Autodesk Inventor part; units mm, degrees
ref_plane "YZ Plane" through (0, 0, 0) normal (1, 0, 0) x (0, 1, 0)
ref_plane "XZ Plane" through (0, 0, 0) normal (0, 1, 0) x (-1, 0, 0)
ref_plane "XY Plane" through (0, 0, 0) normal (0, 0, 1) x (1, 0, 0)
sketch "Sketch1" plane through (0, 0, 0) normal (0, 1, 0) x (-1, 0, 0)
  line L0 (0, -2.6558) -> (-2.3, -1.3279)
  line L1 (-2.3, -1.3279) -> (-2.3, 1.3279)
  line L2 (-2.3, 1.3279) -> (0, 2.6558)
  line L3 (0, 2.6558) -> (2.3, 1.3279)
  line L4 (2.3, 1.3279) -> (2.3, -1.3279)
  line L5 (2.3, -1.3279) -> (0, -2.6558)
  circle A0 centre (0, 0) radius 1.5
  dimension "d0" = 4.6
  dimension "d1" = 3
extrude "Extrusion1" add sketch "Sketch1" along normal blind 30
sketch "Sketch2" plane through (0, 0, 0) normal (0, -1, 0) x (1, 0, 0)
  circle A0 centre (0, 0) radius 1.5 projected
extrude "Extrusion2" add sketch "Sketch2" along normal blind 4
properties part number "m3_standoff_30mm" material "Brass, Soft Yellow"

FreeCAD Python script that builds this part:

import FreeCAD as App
import Part
import Sketcher
from FreeCAD import Vector
Q = App.Units.Quantity

doc = App.newDocument("Part")
body = doc.addObject("PartDesign::Body", "Body")
body.AllowCompound = True

# Sketch on XZ plane
sketch1 = body.newObject("Sketcher::SketchObject", "Sketch")
sketch1.AttachmentSupport = (doc.getObject("XZ_Plane"), [""])
sketch1.MapMode = "FlatFace"
sketch1.addGeometry(Part.LineSegment(Vector(2.3, -1.3, 0), Vector(0, -2.7, 0)), False)
sketch1.addGeometry(Part.LineSegment(Vector(0, -2.7, 0), Vector(-2.3, -1.3, 0)), False)
sketch1.addGeometry(Part.LineSegment(Vector(-2.3, -1.3, 0), Vector(-2.3, 1.3, 0)), False)
sketch1.addGeometry(Part.LineSegment(Vector(-2.3, 1.3, 0), Vector(0, 2.7, 0)), False)
sketch1.addGeometry(Part.LineSegment(Vector(0, 2.7, 0), Vector(2.3, 1.3, 0)), False)
sketch1.addGeometry(Part.LineSegment(Vector(2.3, 1.3, 0), Vector(2.3, -1.3, 0)), False)
sketch1.addGeometry(Part.Circle(Vector(0, 0, 0), Vector(0, 0, 1), 1.5), False)
sketch1.addConstraint(Sketcher.Constraint("Coincident", 0, 2, 1, 1))
sketch1.addConstraint(Sketcher.Constraint("Coincident", 1, 2, 2, 1))
sketch1.addConstraint(Sketcher.Constraint("Coincident", 2, 2, 3, 1))
sketch1.addConstraint(Sketcher.Constraint("Coincident", 3, 2, 4, 1))
sketch1.addConstraint(Sketcher.Constraint("Coincident", 4, 2, 5, 1))
sketch1.addConstraint(Sketcher.Constraint("Coincident", 5, 2, 0, 1))
sketch1.addConstraint(Sketcher.Constraint("Vertical", 2))
sketch1.addConstraint(Sketcher.Constraint("Vertical", 5))
sketch1.addConstraint(Sketcher.Constraint("Coincident", 6, 3, -1, 1))
sketch1.addConstraint(Sketcher.Constraint("Symmetric", 0, 2, 3, 2, -1, 1))
sketch1.addConstraint(Sketcher.Constraint("Symmetric", 1, 2, 4, 2, -1, 1))
sketch1.addConstraint(Sketcher.Constraint("PointOnObject", 0, 2, -2))
sketch1.addConstraint(Sketcher.Constraint("Parallel", 0, 3))
sketch1.addConstraint(Sketcher.Constraint("Horizontal", 2, 2, 4, 2))
sketch1.addConstraint(Sketcher.Constraint("Diameter", 6, Q("3 mm")))
sketch1.addConstraint(Sketcher.Constraint("DistanceX", 2, 2, 4, 2, Q("4.6 mm")))
sketch1.addConstraint(Sketcher.Constraint("Angle", 0, Q("-150 deg")))
sketch1.addConstraint(Sketcher.Constraint("DistanceY", 2, 1, 2, 2, Q("2.6558 mm")))
pad1 = body.newObject("PartDesign::Pad", "Pad")
pad1.Profile = sketch1
pad1.Length = 30
pad1.Reversed = True

# Sketch on XZ plane
sketch2 = body.newObject("Sketcher::SketchObject", "Sketch001")
sketch2.AttachmentSupport = (doc.getObject("XZ_Plane"), [""])
sketch2.MapMode = "FlatFace"
sketch2.addGeometry(Part.Circle(Vector(0, 0, 0), Vector(0, 0, 1), 1.5), False)
sketch2.addConstraint(Sketcher.Constraint("Coincident", 0, 3, -1, 1))
sketch2.addConstraint(Sketcher.Constraint("Diameter", 0, Q("3 mm")))
pad2 = body.newObject("PartDesign::Pad", "Pad001")
pad2.Profile = sketch2
pad2.Length = 4

doc.recompute()
